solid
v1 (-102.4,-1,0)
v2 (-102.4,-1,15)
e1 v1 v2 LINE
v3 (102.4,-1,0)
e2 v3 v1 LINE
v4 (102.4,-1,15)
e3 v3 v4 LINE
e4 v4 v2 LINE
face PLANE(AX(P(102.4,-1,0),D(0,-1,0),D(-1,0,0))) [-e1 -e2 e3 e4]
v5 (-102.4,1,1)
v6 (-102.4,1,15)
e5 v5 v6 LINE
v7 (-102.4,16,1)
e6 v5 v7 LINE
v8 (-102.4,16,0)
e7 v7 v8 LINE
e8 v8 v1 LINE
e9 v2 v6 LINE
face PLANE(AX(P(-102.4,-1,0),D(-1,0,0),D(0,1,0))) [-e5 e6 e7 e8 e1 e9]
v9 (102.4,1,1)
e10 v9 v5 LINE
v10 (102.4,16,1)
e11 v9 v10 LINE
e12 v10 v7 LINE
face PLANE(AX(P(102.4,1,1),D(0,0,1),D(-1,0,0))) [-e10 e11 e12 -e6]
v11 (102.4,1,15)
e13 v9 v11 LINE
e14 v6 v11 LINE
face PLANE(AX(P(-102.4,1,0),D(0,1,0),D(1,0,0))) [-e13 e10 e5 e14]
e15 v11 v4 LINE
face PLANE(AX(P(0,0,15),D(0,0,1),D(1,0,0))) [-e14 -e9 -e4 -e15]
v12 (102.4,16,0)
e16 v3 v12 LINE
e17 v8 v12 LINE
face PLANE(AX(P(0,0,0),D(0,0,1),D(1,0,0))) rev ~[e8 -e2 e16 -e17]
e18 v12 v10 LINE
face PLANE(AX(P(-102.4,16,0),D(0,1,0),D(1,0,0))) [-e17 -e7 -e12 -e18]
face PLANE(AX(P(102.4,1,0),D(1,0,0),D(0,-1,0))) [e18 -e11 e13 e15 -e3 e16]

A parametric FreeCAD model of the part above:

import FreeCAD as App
import Part
import Sketcher
from FreeCAD import Vector


def add_polygon(sketch, points):
    """Adds a closed chain of lines whose ends are joined by coincident constraints."""
    first, n = sketch.GeometryCount, len(points)
    for a, b in zip(points, points[1:] + points[:1]):
        sketch.addGeometry(Part.LineSegment(App.Vector(*a, 0), App.Vector(*b, 0)), False)
    for i in range(n):
        sketch.addConstraint(Sketcher.Constraint("Coincident", first + i, 2, first + (i + 1) % n, 1))

doc = App.newDocument("Part")
body = doc.addObject("PartDesign::Body", "Body")

# Sketch on XY plane
sketch1 = body.newObject("Sketcher::SketchObject", "Sketch")
sketch1.AttachmentSupport = (doc.getObject("XY_Plane"), [""])
sketch1.MapMode = "FlatFace"
add_polygon(sketch1, [(102.4, 1), (-102.4, 1), (-102.4, -1), (102.4, -1)])  # lines 0-3
sketch1.addConstraint(Sketcher.Constraint("Horizontal", 0))
sketch1.addConstraint(Sketcher.Constraint("Vertical", 1))
sketch1.addConstraint(Sketcher.Constraint("Horizontal", 2))
sketch1.addConstraint(Sketcher.Constraint("Vertical", 3))
sketch1.addConstraint(Sketcher.Constraint("Symmetric", 0, 2, 2, 2, -1, 1))
sketch1.addConstraint(Sketcher.Constraint("DistanceY", 1, 2, 1, 1, 2.0))
sketch1.addConstraint(Sketcher.Constraint("DistanceX", 0, 2, 0, 1, 204.8))
pad1 = body.newObject("PartDesign::Pad", "Pad")
pad1.Profile = sketch1
pad1.Length = 15

# Sketch on XZ plane
sketch2 = body.newObject("Sketcher::SketchObject", "Sketch001")
sketch2.AttachmentSupport = (doc.getObject("XZ_Plane"), [""])
sketch2.MapMode = "FlatFace"
sketch2.AttachmentOffset = App.Placement(Vector(0, 0, -1), App.Rotation())
add_polygon(sketch2, [(102.4, 0), (-102.4, 0), (-102.4, 1), (102.4, 1)])  # lines 0-3
sketch2.addConstraint(Sketcher.Constraint("Horizontal", 0))
sketch2.addConstraint(Sketcher.Constraint("Vertical", 1))
sketch2.addConstraint(Sketcher.Constraint("Horizontal", 2))
sketch2.addConstraint(Sketcher.Constraint("Vertical", 3))
sketch2.addConstraint(Sketcher.Constraint("Symmetric", 0, 2, 3, 2, -1, 1))
sketch2.addConstraint(Sketcher.Constraint("DistanceY", 1, 1, 1, 2, 1.0))
sketch2.addConstraint(Sketcher.Constraint("DistanceX", 0, 2, 0, 1, 204.8))
pad2 = body.newObject("PartDesign::Pad", "Pad001")
pad2.Profile = sketch2
pad2.Length = 15
pad2.Reversed = True

doc.recompute()
